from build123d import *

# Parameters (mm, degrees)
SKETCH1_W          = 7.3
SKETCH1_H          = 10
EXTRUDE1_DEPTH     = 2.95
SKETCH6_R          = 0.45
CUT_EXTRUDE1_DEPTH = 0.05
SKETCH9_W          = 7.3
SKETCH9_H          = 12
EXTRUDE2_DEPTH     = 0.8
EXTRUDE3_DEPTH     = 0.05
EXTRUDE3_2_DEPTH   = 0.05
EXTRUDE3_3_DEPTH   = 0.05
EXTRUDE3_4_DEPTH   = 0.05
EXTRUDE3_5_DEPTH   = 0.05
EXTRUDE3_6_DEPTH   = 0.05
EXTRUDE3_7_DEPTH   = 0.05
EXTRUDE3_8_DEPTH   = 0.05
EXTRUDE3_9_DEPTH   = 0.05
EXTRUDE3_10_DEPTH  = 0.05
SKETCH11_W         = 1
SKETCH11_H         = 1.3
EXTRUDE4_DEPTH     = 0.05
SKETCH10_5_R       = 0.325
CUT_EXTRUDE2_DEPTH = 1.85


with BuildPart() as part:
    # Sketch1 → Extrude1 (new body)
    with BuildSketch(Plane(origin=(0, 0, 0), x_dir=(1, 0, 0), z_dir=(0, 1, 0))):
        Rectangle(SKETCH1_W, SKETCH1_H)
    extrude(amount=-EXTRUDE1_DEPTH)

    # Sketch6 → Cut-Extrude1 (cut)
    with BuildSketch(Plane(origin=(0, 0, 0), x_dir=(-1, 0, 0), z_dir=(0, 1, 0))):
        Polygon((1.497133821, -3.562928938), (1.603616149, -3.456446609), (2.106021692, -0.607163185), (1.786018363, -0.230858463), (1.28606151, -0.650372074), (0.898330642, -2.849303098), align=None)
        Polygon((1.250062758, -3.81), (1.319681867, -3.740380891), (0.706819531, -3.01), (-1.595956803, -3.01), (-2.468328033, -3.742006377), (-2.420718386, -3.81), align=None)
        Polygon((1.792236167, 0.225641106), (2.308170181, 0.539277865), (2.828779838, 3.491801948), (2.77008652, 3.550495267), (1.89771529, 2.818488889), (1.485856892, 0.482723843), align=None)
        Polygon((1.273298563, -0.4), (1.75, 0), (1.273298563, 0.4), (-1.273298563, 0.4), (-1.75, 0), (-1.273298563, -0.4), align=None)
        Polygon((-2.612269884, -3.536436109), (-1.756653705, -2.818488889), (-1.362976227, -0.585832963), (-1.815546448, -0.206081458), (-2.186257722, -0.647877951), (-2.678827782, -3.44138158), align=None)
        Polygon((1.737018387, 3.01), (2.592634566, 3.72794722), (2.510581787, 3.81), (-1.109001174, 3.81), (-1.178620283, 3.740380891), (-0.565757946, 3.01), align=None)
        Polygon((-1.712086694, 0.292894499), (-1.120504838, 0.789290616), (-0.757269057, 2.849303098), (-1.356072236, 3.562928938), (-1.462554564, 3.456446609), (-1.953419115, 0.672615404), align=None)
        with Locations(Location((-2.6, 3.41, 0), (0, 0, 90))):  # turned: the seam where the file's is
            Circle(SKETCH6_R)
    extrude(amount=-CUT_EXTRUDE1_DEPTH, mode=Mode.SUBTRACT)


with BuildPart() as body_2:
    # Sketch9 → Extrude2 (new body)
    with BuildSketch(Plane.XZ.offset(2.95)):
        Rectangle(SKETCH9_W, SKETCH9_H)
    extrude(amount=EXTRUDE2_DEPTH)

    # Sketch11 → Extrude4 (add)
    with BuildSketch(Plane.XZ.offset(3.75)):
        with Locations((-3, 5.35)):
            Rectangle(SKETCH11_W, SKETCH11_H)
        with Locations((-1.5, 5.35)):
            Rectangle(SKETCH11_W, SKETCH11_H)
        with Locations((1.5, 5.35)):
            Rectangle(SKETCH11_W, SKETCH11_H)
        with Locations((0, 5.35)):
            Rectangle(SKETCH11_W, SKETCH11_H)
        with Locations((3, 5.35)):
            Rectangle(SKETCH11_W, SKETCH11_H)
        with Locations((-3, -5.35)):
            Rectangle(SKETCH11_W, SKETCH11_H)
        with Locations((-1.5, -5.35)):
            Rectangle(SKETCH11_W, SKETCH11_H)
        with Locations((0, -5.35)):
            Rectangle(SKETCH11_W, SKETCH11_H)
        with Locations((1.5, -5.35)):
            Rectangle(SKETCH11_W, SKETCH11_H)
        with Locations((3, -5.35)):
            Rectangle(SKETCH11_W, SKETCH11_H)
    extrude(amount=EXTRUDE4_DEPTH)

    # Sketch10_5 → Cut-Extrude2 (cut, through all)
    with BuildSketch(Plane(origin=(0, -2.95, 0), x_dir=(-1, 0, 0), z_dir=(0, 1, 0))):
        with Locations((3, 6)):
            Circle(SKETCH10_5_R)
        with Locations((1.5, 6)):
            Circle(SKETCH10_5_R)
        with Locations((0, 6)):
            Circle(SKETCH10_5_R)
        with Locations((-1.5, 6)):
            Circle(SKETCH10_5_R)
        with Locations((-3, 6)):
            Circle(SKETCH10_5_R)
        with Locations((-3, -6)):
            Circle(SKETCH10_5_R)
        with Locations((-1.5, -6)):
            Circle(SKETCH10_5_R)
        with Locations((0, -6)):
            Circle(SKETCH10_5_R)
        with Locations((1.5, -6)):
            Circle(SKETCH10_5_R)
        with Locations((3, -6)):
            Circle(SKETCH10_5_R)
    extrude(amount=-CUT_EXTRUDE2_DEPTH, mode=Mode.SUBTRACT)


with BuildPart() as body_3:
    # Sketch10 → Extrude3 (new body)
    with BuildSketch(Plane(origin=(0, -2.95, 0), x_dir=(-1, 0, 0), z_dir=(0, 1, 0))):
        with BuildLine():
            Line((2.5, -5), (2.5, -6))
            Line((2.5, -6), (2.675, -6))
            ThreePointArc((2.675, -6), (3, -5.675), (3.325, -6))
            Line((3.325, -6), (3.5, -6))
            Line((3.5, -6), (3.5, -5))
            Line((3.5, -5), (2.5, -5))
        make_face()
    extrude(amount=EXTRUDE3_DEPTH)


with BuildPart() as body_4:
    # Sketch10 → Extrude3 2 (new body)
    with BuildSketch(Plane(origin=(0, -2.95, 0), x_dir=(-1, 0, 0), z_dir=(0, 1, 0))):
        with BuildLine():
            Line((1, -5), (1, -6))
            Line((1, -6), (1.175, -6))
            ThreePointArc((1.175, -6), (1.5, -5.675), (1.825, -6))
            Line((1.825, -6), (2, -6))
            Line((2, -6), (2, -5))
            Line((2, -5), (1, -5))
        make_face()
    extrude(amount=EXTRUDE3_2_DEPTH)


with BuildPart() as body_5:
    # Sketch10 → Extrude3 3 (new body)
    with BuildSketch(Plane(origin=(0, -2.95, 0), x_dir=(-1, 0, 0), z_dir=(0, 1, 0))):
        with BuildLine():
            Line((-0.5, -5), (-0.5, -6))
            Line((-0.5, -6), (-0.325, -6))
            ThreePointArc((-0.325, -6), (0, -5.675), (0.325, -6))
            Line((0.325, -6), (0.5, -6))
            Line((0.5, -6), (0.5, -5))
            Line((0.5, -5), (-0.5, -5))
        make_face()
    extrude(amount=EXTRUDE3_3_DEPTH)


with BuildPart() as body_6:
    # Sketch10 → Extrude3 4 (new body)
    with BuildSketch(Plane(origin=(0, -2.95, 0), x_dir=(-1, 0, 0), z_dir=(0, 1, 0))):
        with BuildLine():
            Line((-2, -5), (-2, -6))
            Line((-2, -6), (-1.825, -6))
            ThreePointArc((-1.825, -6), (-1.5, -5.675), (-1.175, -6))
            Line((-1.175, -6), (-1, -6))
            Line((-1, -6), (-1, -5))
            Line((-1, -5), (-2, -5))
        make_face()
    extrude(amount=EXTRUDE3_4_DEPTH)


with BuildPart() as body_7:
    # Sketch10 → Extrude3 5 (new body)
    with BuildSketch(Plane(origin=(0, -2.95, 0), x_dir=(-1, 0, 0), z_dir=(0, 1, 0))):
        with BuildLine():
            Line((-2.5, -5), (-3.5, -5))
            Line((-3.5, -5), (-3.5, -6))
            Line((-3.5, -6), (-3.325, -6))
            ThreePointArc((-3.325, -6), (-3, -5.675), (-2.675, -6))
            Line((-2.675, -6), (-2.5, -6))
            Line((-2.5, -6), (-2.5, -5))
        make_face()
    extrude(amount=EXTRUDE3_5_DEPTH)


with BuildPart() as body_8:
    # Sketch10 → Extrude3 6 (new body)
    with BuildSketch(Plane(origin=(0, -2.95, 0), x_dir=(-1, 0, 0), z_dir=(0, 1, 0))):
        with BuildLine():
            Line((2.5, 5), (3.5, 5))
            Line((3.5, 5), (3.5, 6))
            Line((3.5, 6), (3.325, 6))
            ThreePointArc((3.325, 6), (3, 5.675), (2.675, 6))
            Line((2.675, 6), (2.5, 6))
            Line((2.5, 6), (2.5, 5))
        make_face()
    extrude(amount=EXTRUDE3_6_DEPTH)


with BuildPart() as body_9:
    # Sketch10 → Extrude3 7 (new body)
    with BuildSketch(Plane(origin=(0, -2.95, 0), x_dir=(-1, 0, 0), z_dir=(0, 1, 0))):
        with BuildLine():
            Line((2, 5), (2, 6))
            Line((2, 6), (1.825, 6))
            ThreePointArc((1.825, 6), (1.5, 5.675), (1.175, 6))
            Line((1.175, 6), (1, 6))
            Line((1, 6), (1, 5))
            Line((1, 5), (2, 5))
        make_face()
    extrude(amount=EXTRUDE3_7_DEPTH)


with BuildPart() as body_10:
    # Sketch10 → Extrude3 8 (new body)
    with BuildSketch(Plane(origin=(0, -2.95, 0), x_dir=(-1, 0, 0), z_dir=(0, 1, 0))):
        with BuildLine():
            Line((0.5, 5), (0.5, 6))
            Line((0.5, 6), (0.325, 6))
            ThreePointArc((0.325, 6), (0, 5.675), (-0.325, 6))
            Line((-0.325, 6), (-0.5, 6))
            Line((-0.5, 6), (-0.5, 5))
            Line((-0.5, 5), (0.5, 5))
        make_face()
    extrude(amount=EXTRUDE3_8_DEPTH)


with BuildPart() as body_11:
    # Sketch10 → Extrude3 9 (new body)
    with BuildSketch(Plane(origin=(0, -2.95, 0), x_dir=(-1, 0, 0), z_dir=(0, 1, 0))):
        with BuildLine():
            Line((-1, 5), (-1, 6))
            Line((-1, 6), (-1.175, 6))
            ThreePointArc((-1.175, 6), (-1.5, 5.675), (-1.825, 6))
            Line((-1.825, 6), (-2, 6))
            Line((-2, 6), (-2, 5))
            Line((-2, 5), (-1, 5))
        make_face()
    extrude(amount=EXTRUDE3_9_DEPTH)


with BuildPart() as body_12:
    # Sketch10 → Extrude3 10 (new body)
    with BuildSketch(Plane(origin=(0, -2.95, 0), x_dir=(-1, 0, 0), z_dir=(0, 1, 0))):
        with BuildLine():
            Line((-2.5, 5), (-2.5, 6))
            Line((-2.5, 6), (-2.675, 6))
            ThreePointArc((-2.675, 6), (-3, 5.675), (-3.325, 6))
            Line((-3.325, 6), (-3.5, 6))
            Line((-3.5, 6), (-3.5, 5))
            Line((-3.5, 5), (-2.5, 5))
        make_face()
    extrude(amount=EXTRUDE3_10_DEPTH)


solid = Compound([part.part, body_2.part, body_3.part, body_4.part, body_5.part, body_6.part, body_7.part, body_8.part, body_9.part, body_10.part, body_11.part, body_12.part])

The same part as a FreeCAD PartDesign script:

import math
import FreeCAD as App
import Part
import Sketcher
Q = App.Units.Quantity


def add_polygon(sketch, points):
    """Adds a closed chain of lines whose ends are joined by coincident constraints."""
    first, n = sketch.GeometryCount, len(points)
    for a, b in zip(points, points[1:] + points[:1]):
        sketch.addGeometry(Part.LineSegment(App.Vector(*a, 0), App.Vector(*b, 0)), False)
    for i in range(n):
        sketch.addConstraint(Sketcher.Constraint("Coincident", first + i, 2, first + (i + 1) % n, 1))

doc = App.newDocument("Part")
body = doc.addObject("PartDesign::Body", "Body")

# Sketch on XZ plane
sketch1 = body.newObject("Sketcher::SketchObject", "Sketch")
sketch1.AttachmentSupport = (doc.getObject("XZ_Plane"), [""])
sketch1.MapMode = "FlatFace"
add_polygon(sketch1, [(-3.65, -5), (-3.65, 5), (3.65, 5), (3.65, -5)])  # lines 0-3
sketch1.addConstraint([
    Sketcher.Constraint("Vertical", 0),
    Sketcher.Constraint("Horizontal", 1),
    Sketcher.Constraint("Vertical", 2),
    Sketcher.Constraint("Horizontal", 3),
    Sketcher.Constraint("Symmetric", 0, 2, 2, 2, -1, 1),
    Sketcher.Constraint("DistanceY", 0, 1, 0, 2, Q("10 mm")),
    Sketcher.Constraint("DistanceX", 1, 1, 1, 2, Q("7.3 mm")),
])
pad1 = body.newObject("PartDesign::Pad", "Pad")
pad1.Profile = sketch1
pad1.Length = 2.95

# Sketch on XZ plane
sketch2 = body.newObject("Sketcher::SketchObject", "Sketch001")
sketch2.AttachmentSupport = (doc.getObject("XZ_Plane"), [""])
sketch2.MapMode = "FlatFace"
add_polygon(sketch2, [(-1.497134, -3.562929), (-1.603616, -3.456447), (-2.106022, -0.607163), (-1.786018, -0.230858), (-1.286062, -0.650372), (-0.898331, -2.849303)])  # lines 0-5
add_polygon(sketch2, [(-1.250063, -3.81), (-1.319682, -3.740381), (-0.70682, -3.01), (1.595957, -3.01), (2.468328, -3.742006), (2.420718, -3.81)])  # lines 6-11
add_polygon(sketch2, [(-1.792236, 0.225641), (-2.30817, 0.539278), (-2.82878, 3.491802), (-2.770087, 3.550495), (-1.897715, 2.818489), (-1.485857, 0.482724)])  # lines 12-17
add_polygon(sketch2, [(-1.273299, -0.4), (-1.75, 0), (-1.273299, 0.4), (1.273299, 0.4), (1.75, 0), (1.273299, -0.4)])  # lines 18-23
add_polygon(sketch2, [(2.61227, -3.536436), (1.756654, -2.818489), (1.362976, -0.585833), (1.815546, -0.206081), (2.186258, -0.647878), (2.678828, -3.441382)])  # lines 24-29
add_polygon(sketch2, [(-1.737018, 3.01), (-2.592635, 3.727947), (-2.510582, 3.81), (1.109001, 3.81), (1.17862, 3.740381), (0.565758, 3.01)])  # lines 30-35
add_polygon(sketch2, [(1.712087, 0.292894), (1.120505, 0.789291), (0.757269, 2.849303), (1.356072, 3.562929), (1.462555, 3.456447), (1.953419, 0.672615)])  # lines 36-41
sketch2.addGeometry(Part.Circle(App.Vector(2.6, 3.41, 0), App.Vector(0, 0, 1), 0.45), False)  # 42
sketch2.addConstraint([
    Sketcher.Constraint("Horizontal", 8),
    Sketcher.Constraint("Horizontal", 11),
    Sketcher.Constraint("Horizontal", 20),
    Sketcher.Constraint("Horizontal", 23),
    Sketcher.Constraint("Horizontal", 32),
    Sketcher.Constraint("Horizontal", 35),
    Sketcher.Constraint("Symmetric", 18, 2, 21, 2, -1, 1),
    Sketcher.Constraint("Symmetric", 19, 2, 22, 2, -1, 1),
    Sketcher.Constraint("PointOnObject", 18, 2, -1),
    Sketcher.Constraint("Parallel", 1, 4),
    Sketcher.Constraint("Perpendicular", 3, 5),
    Sketcher.Constraint("Parallel", 0, 6),
    Sketcher.Constraint("Parallel", 5, 7),
    Sketcher.Constraint("Perpendicular", 7, 9),
    Sketcher.Constraint("Parallel", 4, 13),
    Sketcher.Constraint("Perpendicular", 6, 14),
    Sketcher.Constraint("Parallel", 9, 15),
    Sketcher.Constraint("Parallel", 13, 16),
    Sketcher.Constraint("Parallel", 15, 18),
    Sketcher.Constraint("Parallel", 17, 19),
    Sketcher.Constraint("Parallel", 18, 21),
    Sketcher.Constraint("Parallel", 21, 24),
    Sketcher.Constraint("Parallel", 16, 25),
    Sketcher.Constraint("Parallel", 22, 26),
    Sketcher.Constraint("Perpendicular", 26, 27),
    Sketcher.Constraint("Parallel", 25, 28),
    Sketcher.Constraint("Parallel", 10, 29),
    Sketcher.Constraint("Parallel", 24, 30),
    Sketcher.Constraint("Parallel", 14, 31),
    Sketcher.Constraint("Perpendicular", 31, 33),
    Sketcher.Constraint("Perpendicular", 30, 34),
    Sketcher.Constraint("Perpendicular", 34, 36),
    Sketcher.Constraint("Parallel", 28, 37),
    Sketcher.Constraint("Perpendicular", 36, 38),
    Sketcher.Constraint("Parallel", 33, 39),
    Sketcher.Constraint("Parallel", 37, 40),
    Sketcher.Constraint("Vertical", 20, 2, 22, 2),
    Sketcher.Constraint("Equal", 8, 35),
    Sketcher.Constraint("Equal", 10, 14),
    Sketcher.Constraint("Equal", 9, 15),
    Sketcher.Constraint("Equal", 24, 30),
    Sketcher.Constraint("Equal", 29, 31),
    Sketcher.Constraint("Equal", 6, 33),
    Sketcher.Constraint("Equal", 7, 34),
    Sketcher.Constraint("Equal", 5, 38),
    Sketcher.Constraint("Equal", 0, 39),
    Sketcher.Constraint("Diameter", 42, Q("0.9 mm")),
    Sketcher.Constraint("Angle", 0, Q("135 deg")),
    Sketcher.Constraint("Angle", 1, Q("100 deg")),
    Sketcher.Constraint("Angle", 3, Q("-40 deg")),
    Sketcher.Constraint("Angle", 10, Q("-125 deg")),
    Sketcher.Constraint("DistanceX", -1, 1, 42, 3, Q("2.6 mm")),
    Sketcher.Constraint("DistanceY", -1, 1, 19, 2, Q("0.4 mm")),
    Sketcher.Constraint("DistanceY", 10, 2, 8, 2, Q("0.8 mm")),
    Sketcher.Constraint("DistanceY", 42, 3, 32, 2, Q("0.4 mm")),
    Sketcher.Constraint("DistanceY", -1, 1, 42, 3, Q("3.41 mm")),
    Sketcher.Constraint("DistanceY", 7, 2, -1, 1, Q("3.01 mm")),
    Sketcher.Constraint("DistanceX", 18, 2, -1, 1, Q("1.75 mm")),
    Sketcher.Constraint("DistanceX", -1, 1, 32, 2, Q("1.109001 mm")),
    Sketcher.Constraint("Distance", 9, Q("1.1388 mm")),
    Sketcher.Constraint("Distance", 25, Q("2.267098 mm")),
    Sketcher.Constraint("DistanceX", 11, 2, 11, 1, Q("3.670781 mm")),
    Sketcher.Constraint("DistanceY", -1, 1, 13, 2, Q("3.491802 mm")),
    Sketcher.Constraint("DistanceX", 6, 2, 10, 2, Q("3.7404 mm")),
    Sketcher.Constraint("DistanceY", 2, 2, 17, 2, Q("0.4565 mm")),
    Sketcher.Constraint("DistanceX", 9, 2, 28, 2, Q("0.2105 mm")),
    Sketcher.Constraint("DistanceX", 13, 2, 31, 2, Q("0.318198 mm")),
    Sketcher.Constraint("Distance", 0, Q("0.150589 mm")),
    Sketcher.Constraint("Distance", 1, Q("2.893238 mm")),
    Sketcher.Constraint("Distance", 2, Q("0.493971 mm")),
    Sketcher.Constraint("Distance", 13, Q("2.998072 mm")),
    Sketcher.Constraint("Distance", 17, Q("0.39995 mm")),
    Sketcher.Constraint("Distance", 26, Q("0.590788 mm")),
    Sketcher.Constraint("Distance", 29, Q("0.11604 mm")),
    Sketcher.Constraint("Distance", 37, Q("2.091791 mm")),
    Sketcher.Constraint("Distance", 41, Q("0.449921 mm")),
    Sketcher.Constraint("DistanceX", 1, 2, -1, 1, Q("2.106022 mm")),
    Sketcher.Constraint("DistanceX", 2, 2, -1, 1, Q("1.786018 mm")),
    Sketcher.Constraint("DistanceY", 2, 2, -1, 1, Q("0.230858 mm")),
    Sketcher.Constraint("DistanceX", 3, 2, -1, 1, Q("1.286062 mm")),
    Sketcher.Constraint("DistanceX", 6, 2, -1, 1, Q("1.319682 mm")),
    Sketcher.Constraint("DistanceY", 24, 2, -1, 1, Q("2.818489 mm")),
    Sketcher.Constraint("DistanceY", -1, 1, 36, 2, Q("0.789291 mm")),
    Sketcher.Constraint("DistanceX", -1, 1, 37, 2, Q("0.757269 mm")),
    Sketcher.Constraint("DistanceX", -1, 1, 40, 2, Q("1.953419 mm")),
])
pocket1 = body.newObject("PartDesign::Pocket", "Pocket")
pocket1.Profile = sketch2
pocket1.Length = 0.05
pocket1.Reversed = True
body2 = doc.addObject("PartDesign::Body", "Body001")

# Sketch on XZ plane
sketch3 = body2.newObject("Sketcher::SketchObject", "Sketch002")
sketch3.AttachmentSupport = (doc.getObject("XZ_Plane001"), [""])
sketch3.MapMode = "FlatFace"
sketch3.AttachmentOffset = App.Placement(App.Vector(0, 0, 2.95), App.Rotation())
add_polygon(sketch3, [(-3.65, 6), (-3.65, -6), (3.65, -6), (3.65, 6)])  # lines 0-3
sketch3.addConstraint([
    Sketcher.Constraint("Vertical", 0),
    Sketcher.Constraint("Horizontal", 1),
    Sketcher.Constraint("Vertical", 2),
    Sketcher.Constraint("Horizontal", 3),
    Sketcher.Constraint("Symmetric", 0, 2, 2, 2, -1, 1),
    Sketcher.Constraint("DistanceY", 0, 2, 0, 1, Q("12 mm")),
    Sketcher.Constraint("DistanceX", 1, 1, 1, 2, Q("7.3 mm")),
])
pad2 = body2.newObject("PartDesign::Pad", "Pad001")
pad2.Profile = sketch3
pad2.Length = 0.8

# Sketch on XZ plane
sketch4 = body2.newObject("Sketcher::SketchObject", "Sketch003")
sketch4.AttachmentSupport = (doc.getObject("XZ_Plane001"), [""])
sketch4.MapMode = "FlatFace"
sketch4.AttachmentOffset = App.Placement(App.Vector(0, 0, 3.75), App.Rotation())
add_polygon(sketch4, [(-3.5, 6), (-3.5, 4.7), (-2.5, 4.7), (-2.5, 6)])  # lines 0-3
add_polygon(sketch4, [(-2, 6), (-2, 4.7), (-1, 4.7), (-1, 6)])  # lines 4-7
add_polygon(sketch4, [(1, 6), (1, 4.7), (2, 4.7), (2, 6)])  # lines 8-11
add_polygon(sketch4, [(-0.5, 6), (-0.5, 4.7), (0.5, 4.7), (0.5, 6)])  # lines 12-15
add_polygon(sketch4, [(2.5, 6), (2.5, 4.7), (3.5, 4.7), (3.5, 6)])  # lines 16-19
add_polygon(sketch4, [(-3.5, -4.7), (-3.5, -6), (-2.5, -6), (-2.5, -4.7)])  # lines 20-23
add_polygon(sketch4, [(-2, -4.7), (-2, -6), (-1, -6), (-1, -4.7)])  # lines 24-27
add_polygon(sketch4, [(-0.5, -4.7), (-0.5, -6), (0.5, -6), (0.5, -4.7)])  # lines 28-31
add_polygon(sketch4, [(1, -4.7), (1, -6), (2, -6), (2, -4.7)])  # lines 32-35
add_polygon(sketch4, [(2.5, -4.7), (2.5, -6), (3.5, -6), (3.5, -4.7)])  # lines 36-39
sketch4.addConstraint([
    Sketcher.Constraint("Vertical", 0),
    Sketcher.Constraint("Horizontal", 1),
    Sketcher.Constraint("Vertical", 2),
    Sketcher.Constraint("Horizontal", 3),
    Sketcher.Constraint("Vertical", 4),
    Sketcher.Constraint("Horizontal", 5),
    Sketcher.Constraint("Vertical", 6),
    Sketcher.Constraint("Horizontal", 7),
    Sketcher.Constraint("Vertical", 8),
    Sketcher.Constraint("Horizontal", 9),
    Sketcher.Constraint("Vertical", 10),
    Sketcher.Constraint("Horizontal", 11),
    Sketcher.Constraint("Vertical", 12),
    Sketcher.Constraint("Horizontal", 13),
    Sketcher.Constraint("Vertical", 14),
    Sketcher.Constraint("Horizontal", 15),
    Sketcher.Constraint("Vertical", 16),
    Sketcher.Constraint("Horizontal", 17),
    Sketcher.Constraint("Vertical", 18),
    Sketcher.Constraint("Horizontal", 19),
    Sketcher.Constraint("Vertical", 20),
    Sketcher.Constraint("Horizontal", 21),
    Sketcher.Constraint("Vertical", 22),
    Sketcher.Constraint("Horizontal", 23),
    Sketcher.Constraint("Vertical", 24),
    Sketcher.Constraint("Horizontal", 25),
    Sketcher.Constraint("Vertical", 26),
    Sketcher.Constraint("Horizontal", 27),
    Sketcher.Constraint("Vertical", 28),
    Sketcher.Constraint("Horizontal", 29),
    Sketcher.Constraint("Vertical", 30),
    Sketcher.Constraint("Horizontal", 31),
    Sketcher.Constraint("Vertical", 32),
    Sketcher.Constraint("Horizontal", 33),
    Sketcher.Constraint("Vertical", 34),
    Sketcher.Constraint("Horizontal", 35),
    Sketcher.Constraint("Vertical", 36),
    Sketcher.Constraint("Horizontal", 37),
    Sketcher.Constraint("Vertical", 38),
    Sketcher.Constraint("Horizontal", 39),
    Sketcher.Constraint("Symmetric", 18, 2, 20, 2, -1, 1),
    Sketcher.Constraint("Symmetric", 16, 2, 22, 2, -1, 1),
    Sketcher.Constraint("Symmetric", 10, 2, 24, 2, -1, 1),
    Sketcher.Constraint("Symmetric", 8, 2, 26, 2, -1, 1),
    Sketcher.Constraint("Symmetric", 14, 2, 28, 2, -1, 1),
    Sketcher.Constraint("Symmetric", 12, 2, 30, 2, -1, 1),
    Sketcher.Constraint("Symmetric", 6, 2, 32, 2, -1, 1),
    Sketcher.Constraint("Symmetric", 4, 2, 34, 2, -1, 1),
    Sketcher.Constraint("Symmetric", 2, 2, 36, 2, -1, 1),
    Sketcher.Constraint("Symmetric", 0, 2, 38, 2, -1, 1),
    Sketcher.Constraint("Symmetric", 5, 2, 8, 2, -2),
    Sketcher.Constraint("Symmetric", 7, 2, 10, 2, -2),
    Sketcher.Constraint("Symmetric", 1, 2, 16, 2, -2),
    Sketcher.Constraint("Symmetric", 3, 2, 18, 2, -2),
    Sketcher.Constraint("Horizontal", 1, 2, 4, 2),
    Sketcher.Constraint("Horizontal", 3, 2, 6, 2),
    Sketcher.Constraint("Horizontal", 9, 2, 12, 2),
    Sketcher.Constraint("Horizontal", 11, 2, 14, 2),
    Sketcher.Constraint("Vertical", 15, 2, 28, 2),
    Sketcher.Constraint("Equal", 3, 5),
    Sketcher.Constraint("Equal", 11, 13),
    Sketcher.Constraint("DistanceX", 1, 1, 1, 2, Q("1 mm")),
    Sketcher.Constraint("DistanceY", 0, 2, 0, 1, Q("1.3 mm")),
    Sketcher.Constraint("DistanceY", -1, 1, 2, 2, Q("6 mm")),
    Sketcher.Constraint("DistanceX", 4, 2, -1, 1, Q("2 mm")),
    Sketcher.Constraint("DistanceX", 13, 2, 16, 2, Q("2 mm")),
])
pad3 = body2.newObject("PartDesign::Pad", "Pad002")
pad3.Profile = sketch4
pad3.Length = 0.05

# Sketch on XZ plane
sketch5 = body2.newObject("Sketcher::SketchObject", "Sketch004")
sketch5.AttachmentSupport = (doc.getObject("XZ_Plane001"), [""])
sketch5.MapMode = "FlatFace"
sketch5.AttachmentOffset = App.Placement(App.Vector(0, 0, 2.95), App.Rotation())
sketch5.addGeometry([
    Part.Circle(App.Vector(-3, 6, 0), App.Vector(0, 0, 1), 0.325),  # 0
    Part.Circle(App.Vector(-1.5, 6, 0), App.Vector(0, 0, 1), 0.325),  # 1
    Part.Circle(App.Vector(0, 6, 0), App.Vector(0, 0, 1), 0.325),  # 2
    Part.Circle(App.Vector(1.5, 6, 0), App.Vector(0, 0, 1), 0.325),  # 3
    Part.Circle(App.Vector(3, 6, 0), App.Vector(0, 0, 1), 0.325),  # 4
    Part.Circle(App.Vector(3, -6, 0), App.Vector(0, 0, 1), 0.325),  # 5
    Part.Circle(App.Vector(1.5, -6, 0), App.Vector(0, 0, 1), 0.325),  # 6
    Part.Circle(App.Vector(0, -6, 0), App.Vector(0, 0, 1), 0.325),  # 7
    Part.Circle(App.Vector(-1.5, -6, 0), App.Vector(0, 0, 1), 0.325),  # 8
    Part.Circle(App.Vector(-3, -6, 0), App.Vector(0, 0, 1), 0.325),  # 9
], False)
sketch5.addConstraint([
    Sketcher.Constraint("Equal", 0, 1),
    Sketcher.Constraint("Equal", 1, 2),
    Sketcher.Constraint("Equal", 2, 3),
    Sketcher.Constraint("Equal", 3, 4),
    Sketcher.Constraint("Equal", 4, 5),
    Sketcher.Constraint("Equal", 5, 6),
    Sketcher.Constraint("Equal", 6, 7),
    Sketcher.Constraint("Equal", 7, 8),
    Sketcher.Constraint("Equal", 8, 9),
    Sketcher.Constraint("Symmetric", 0, 3, 5, 3, -1, 1),
    Sketcher.Constraint("Symmetric", 1, 3, 6, 3, -1, 1),
    Sketcher.Constraint("Symmetric", 2, 3, 7, 3, -1, 1),
    Sketcher.Constraint("Symmetric", 3, 3, 8, 3, -1, 1),
    Sketcher.Constraint("Symmetric", 4, 3, 9, 3, -1, 1),
    Sketcher.Constraint("Symmetric", 1, 3, 3, 3, -2),
    Sketcher.Constraint("Symmetric", 0, 3, 4, 3, -2),
    Sketcher.Constraint("PointOnObject", 2, 3, -2),
    Sketcher.Constraint("Horizontal", 0, 3, 1, 3),
    Sketcher.Constraint("Horizontal", 1, 3, 2, 3),
    Sketcher.Constraint("Diameter", 0, Q("0.65 mm")),
    Sketcher.Constraint("DistanceX", 0, 3, -1, 1, Q("3 mm")),
    Sketcher.Constraint("DistanceY", -1, 1, 0, 3, Q("6 mm")),
    Sketcher.Constraint("DistanceX", 1, 3, 3, 3, Q("3 mm")),
])
pocket2 = body2.newObject("PartDesign::Pocket", "Pocket001")
pocket2.Profile = sketch5
pocket2.Type = "ThroughAll"
pocket2.Reversed = True
body3 = doc.addObject("PartDesign::Body", "Body002")

# Sketch on XZ plane
sketch6 = body3.newObject("Sketcher::SketchObject", "Sketch005")
sketch6.AttachmentSupport = (doc.getObject("XZ_Plane002"), [""])
sketch6.MapMode = "FlatFace"
sketch6.AttachmentOffset = App.Placement(App.Vector(0, 0, 2.95), App.Rotation())
sketch6.addGeometry([
    Part.LineSegment(App.Vector(-2.5, -5, 0), App.Vector(-2.5, -6, 0)),  # 0
    Part.LineSegment(App.Vector(-2.5, -6, 0), App.Vector(-2.675, -6, 0)),  # 1
    Part.ArcOfCircle(Part.Circle(App.Vector(-3, -6, 0), App.Vector(0, 0, 1), 0.325), math.radians(0), math.radians(180)),  # 2
    Part.LineSegment(App.Vector(-3.325, -6, 0), App.Vector(-3.5, -6, 0)),  # 3
    Part.LineSegment(App.Vector(-3.5, -6, 0), App.Vector(-3.5, -5, 0)),  # 4
    Part.LineSegment(App.Vector(-3.5, -5, 0), App.Vector(-2.5, -5, 0)),  # 5
], False)
sketch6.addConstraint([
    Sketcher.Constraint("Coincident", 0, 2, 1, 1),
    Sketcher.Constraint("Coincident", 1, 2, 2, 1),
    Sketcher.Constraint("Coincident", 2, 2, 3, 1),
    Sketcher.Constraint("Coincident", 3, 2, 4, 1),
    Sketcher.Constraint("Coincident", 4, 2, 5, 1),
    Sketcher.Constraint("Coincident", 5, 2, 0, 1),
    Sketcher.Constraint("Vertical", 0),
    Sketcher.Constraint("Horizontal", 1),
    Sketcher.Constraint("Horizontal", 3),
    Sketcher.Constraint("Vertical", 4),
    Sketcher.Constraint("Horizontal", 5),
    Sketcher.Constraint("Horizontal", 2, 3, 0, 2),
    Sketcher.Constraint("Horizontal", 1, 2, 2, 2),
    Sketcher.Constraint("Equal", 1, 3),
    Sketcher.Constraint("Equal", 5, 0),
    Sketcher.Constraint("DistanceX", 5, 1, 5, 2, Q("1 mm")),
    Sketcher.Constraint("DistanceX", 2, 3, -1, 1, Q("3 mm")),
    Sketcher.Constraint("DistanceY", 2, 3, -1, 1, Q("6 mm")),
    Sketcher.Constraint("Radius", 2, Q("0.325 mm")),
])
pad4 = body3.newObject("PartDesign::Pad", "Pad003")
pad4.Profile = sketch6
pad4.Length = 0.05
pad4.Reversed = True
body4 = doc.addObject("PartDesign::Body", "Body003")

# Sketch on XZ plane
sketch7 = body4.newObject("Sketcher::SketchObject", "Sketch006")
sketch7.AttachmentSupport = (doc.getObject("XZ_Plane003"), [""])
sketch7.MapMode = "FlatFace"
sketch7.AttachmentOffset = App.Placement(App.Vector(0, 0, 2.95), App.Rotation())
sketch7.addGeometry([
    Part.LineSegment(App.Vector(-1, -5, 0), App.Vector(-1, -6, 0)),  # 0
    Part.LineSegment(App.Vector(-1, -6, 0), App.Vector(-1.175, -6, 0)),  # 1
    Part.ArcOfCircle(Part.Circle(App.Vector(-1.5, -6, 0), App.Vector(0, 0, 1), 0.325), math.radians(0), math.radians(180)),  # 2
    Part.LineSegment(App.Vector(-1.825, -6, 0), App.Vector(-2, -6, 0)),  # 3
    Part.LineSegment(App.Vector(-2, -6, 0), App.Vector(-2, -5, 0)),  # 4
    Part.LineSegment(App.Vector(-2, -5, 0), App.Vector(-1, -5, 0)),  # 5
], False)
sketch7.addConstraint([
    Sketcher.Constraint("Coincident", 0, 2, 1, 1),
    Sketcher.Constraint("Coincident", 1, 2, 2, 1),
    Sketcher.Constraint("Coincident", 2, 2, 3, 1),
    Sketcher.Constraint("Coincident", 3, 2, 4, 1),
    Sketcher.Constraint("Coincident", 4, 2, 5, 1),
    Sketcher.Constraint("Coincident", 5, 2, 0, 1),
    Sketcher.Constraint("Vertical", 0),
    Sketcher.Constraint("Horizontal", 1),
    Sketcher.Constraint("Horizontal", 3),
    Sketcher.Constraint("Vertical", 4),
    Sketcher.Constraint("Horizontal", 5),
    Sketcher.Constraint("Horizontal", 2, 3, 0, 2),
    Sketcher.Constraint("Horizontal", 1, 2, 2, 2),
    Sketcher.Constraint("Equal", 1, 3),
    Sketcher.Constraint("Equal", 5, 0),
    Sketcher.Constraint("DistanceX", 5, 1, 5, 2, Q("1 mm")),
    Sketcher.Constraint("DistanceY", 2, 3, -1, 1, Q("6 mm")),
    Sketcher.Constraint("DistanceX", 0, 2, -1, 1, Q("1 mm")),
    Sketcher.Constraint("Radius", 2, Q("0.325 mm")),
])
pad5 = body4.newObject("PartDesign::Pad", "Pad004")
pad5.Profile = sketch7
pad5.Length = 0.05
pad5.Reversed = True
body5 = doc.addObject("PartDesign::Body", "Body004")

# Sketch on XZ plane
sketch8 = body5.newObject("Sketcher::SketchObject", "Sketch007")
sketch8.AttachmentSupport = (doc.getObject("XZ_Plane004"), [""])
sketch8.MapMode = "FlatFace"
sketch8.AttachmentOffset = App.Placement(App.Vector(0, 0, 2.95), App.Rotation())
sketch8.addGeometry([
    Part.LineSegment(App.Vector(0.5, -5, 0), App.Vector(0.5, -6, 0)),  # 0
    Part.LineSegment(App.Vector(0.5, -6, 0), App.Vector(0.325, -6, 0)),  # 1
    Part.ArcOfCircle(Part.Circle(App.Vector(0, -6, 0), App.Vector(0, 0, 1), 0.325), math.radians(0), math.radians(180)),  # 2
    Part.LineSegment(App.Vector(-0.325, -6, 0), App.Vector(-0.5, -6, 0)),  # 3
    Part.LineSegment(App.Vector(-0.5, -6, 0), App.Vector(-0.5, -5, 0)),  # 4
    Part.LineSegment(App.Vector(-0.5, -5, 0), App.Vector(0.5, -5, 0)),  # 5
], False)
sketch8.addConstraint([
    Sketcher.Constraint("Coincident", 0, 2, 1, 1),
    Sketcher.Constraint("Coincident", 1, 2, 2, 1),
    Sketcher.Constraint("Coincident", 2, 2, 3, 1),
    Sketcher.Constraint("Coincident", 3, 2, 4, 1),
    Sketcher.Constraint("Coincident", 4, 2, 5, 1),
    Sketcher.Constraint("Coincident", 5, 2, 0, 1),
    Sketcher.Constraint("Vertical", 0),
    Sketcher.Constraint("Horizontal", 1),
    Sketcher.Constraint("Horizontal", 3),
    Sketcher.Constraint("Vertical", 4),
    Sketcher.Constraint("Horizontal", 5),
    Sketcher.Constraint("Symmetric", 1, 2, 2, 2, -2),
    Sketcher.Constraint("Horizontal", 2, 3, 0, 2),
    Sketcher.Constraint("Equal", 1, 3),
    Sketcher.Constraint("Equal", 5, 0),
    Sketcher.Constraint("DistanceX", 5, 1, 5, 2, Q("1 mm")),
    Sketcher.Constraint("DistanceY", 2, 3, -1, 1, Q("6 mm")),
    Sketcher.Constraint("Radius", 2, Q("0.325 mm")),
])
pad6 = body5.newObject("PartDesign::Pad", "Pad005")
pad6.Profile = sketch8
pad6.Length = 0.05
pad6.Reversed = True
body6 = doc.addObject("PartDesign::Body", "Body005")

# Sketch on XZ plane
sketch9 = body6.newObject("Sketcher::SketchObject", "Sketch008")
sketch9.AttachmentSupport = (doc.getObject("XZ_Plane005"), [""])
sketch9.MapMode = "FlatFace"
sketch9.AttachmentOffset = App.Placement(App.Vector(0, 0, 2.95), App.Rotation())
sketch9.addGeometry([
    Part.LineSegment(App.Vector(2, -5, 0), App.Vector(2, -6, 0)),  # 0
    Part.LineSegment(App.Vector(2, -6, 0), App.Vector(1.825, -6, 0)),  # 1
    Part.ArcOfCircle(Part.Circle(App.Vector(1.5, -6, 0), App.Vector(0, 0, 1), 0.325), math.radians(0), math.radians(180)),  # 2
    Part.LineSegment(App.Vector(1.175, -6, 0), App.Vector(1, -6, 0)),  # 3
    Part.LineSegment(App.Vector(1, -6, 0), App.Vector(1, -5, 0)),  # 4
    Part.LineSegment(App.Vector(1, -5, 0), App.Vector(2, -5, 0)),  # 5
], False)
sketch9.addConstraint([
    Sketcher.Constraint("Coincident", 0, 2, 1, 1),
    Sketcher.Constraint("Coincident", 1, 2, 2, 1),
    Sketcher.Constraint("Coincident", 2, 2, 3, 1),
    Sketcher.Constraint("Coincident", 3, 2, 4, 1),
    Sketcher.Constraint("Coincident", 4, 2, 5, 1),
    Sketcher.Constraint("Coincident", 5, 2, 0, 1),
    Sketcher.Constraint("Vertical", 0),
    Sketcher.Constraint("Horizontal", 1),
    Sketcher.Constraint("Horizontal", 3),
    Sketcher.Constraint("Vertical", 4),
    Sketcher.Constraint("Horizontal", 5),
    Sketcher.Constraint("Horizontal", 2, 3, 0, 2),
    Sketcher.Constraint("Horizontal", 1, 2, 2, 2),
    Sketcher.Constraint("Equal", 1, 3),
    Sketcher.Constraint("Equal", 5, 0),
    Sketcher.Constraint("DistanceX", 5, 1, 5, 2, Q("1 mm")),
    Sketcher.Constraint("DistanceY", 2, 3, -1, 1, Q("6 mm")),
    Sketcher.Constraint("DistanceX", -1, 1, 0, 2, Q("2 mm")),
    Sketcher.Constraint("Radius", 2, Q("0.325 mm")),
])
pad7 = body6.newObject("PartDesign::Pad", "Pad006")
pad7.Profile = sketch9
pad7.Length = 0.05
pad7.Reversed = True
body7 = doc.addObject("PartDesign::Body", "Body006")

# Sketch on XZ plane
sketch10 = body7.newObject("Sketcher::SketchObject", "Sketch009")
sketch10.AttachmentSupport = (doc.getObject("XZ_Plane006"), [""])
sketch10.MapMode = "FlatFace"
sketch10.AttachmentOffset = App.Placement(App.Vector(0, 0, 2.95), App.Rotation())
sketch10.addGeometry([
    Part.LineSegment(App.Vector(2.5, -5, 0), App.Vector(3.5, -5, 0)),  # 0
    Part.LineSegment(App.Vector(3.5, -5, 0), App.Vector(3.5, -6, 0)),  # 1
    Part.LineSegment(App.Vector(3.5, -6, 0), App.Vector(3.325, -6, 0)),  # 2
    Part.ArcOfCircle(Part.Circle(App.Vector(3, -6, 0), App.Vector(0, 0, 1), 0.325), math.radians(0), math.radians(180)),  # 3
    Part.LineSegment(App.Vector(2.675, -6, 0), App.Vector(2.5, -6, 0)),  # 4
    Part.LineSegment(App.Vector(2.5, -6, 0), App.Vector(2.5, -5, 0)),  # 5
], False)
sketch10.addConstraint([
    Sketcher.Constraint("Coincident", 0, 2, 1, 1),
    Sketcher.Constraint("Coincident", 1, 2, 2, 1),
    Sketcher.Constraint("Coincident", 2, 2, 3, 1),
    Sketcher.Constraint("Coincident", 3, 2, 4, 1),
    Sketcher.Constraint("Coincident", 4, 2, 5, 1),
    Sketcher.Constraint("Coincident", 5, 2, 0, 1),
    Sketcher.Constraint("Horizontal", 0),
    Sketcher.Constraint("Vertical", 1),
    Sketcher.Constraint("Horizontal", 2),
    Sketcher.Constraint("Horizontal", 4),
    Sketcher.Constraint("Vertical", 5),
    Sketcher.Constraint("Horizontal", 3, 3, 1, 2),
    Sketcher.Constraint("Horizontal", 2, 2, 3, 2),
    Sketcher.Constraint("Equal", 2, 4),
    Sketcher.Constraint("Equal", 0, 1),
    Sketcher.Constraint("DistanceX", 0, 1, 0, 2, Q("1 mm")),
    Sketcher.Constraint("DistanceX", -1, 1, 3, 3, Q("3 mm")),
    Sketcher.Constraint("DistanceY", 3, 3, -1, 1, Q("6 mm")),
    Sketcher.Constraint("Radius", 3, Q("0.325 mm")),
])
pad8 = body7.newObject("PartDesign::Pad", "Pad007")
pad8.Profile = sketch10
pad8.Length = 0.05
pad8.Reversed = True
body8 = doc.addObject("PartDesign::Body", "Body007")

# Sketch on XZ plane
sketch11 = body8.newObject("Sketcher::SketchObject", "Sketch010")
sketch11.AttachmentSupport = (doc.getObject("XZ_Plane007"), [""])
sketch11.MapMode = "FlatFace"
sketch11.AttachmentOffset = App.Placement(App.Vector(0, 0, 2.95), App.Rotation())
sketch11.addGeometry([
    Part.LineSegment(App.Vector(-2.5, 5, 0), App.Vector(-3.5, 5, 0)),  # 0
    Part.LineSegment(App.Vector(-3.5, 5, 0), App.Vector(-3.5, 6, 0)),  # 1
    Part.LineSegment(App.Vector(-3.5, 6, 0), App.Vector(-3.325, 6, 0)),  # 2
    Part.ArcOfCircle(Part.Circle(App.Vector(-3, 6, 0), App.Vector(0, 0, 1), 0.325), math.radians(180), math.radians(360)),  # 3
    Part.LineSegment(App.Vector(-2.675, 6, 0), App.Vector(-2.5, 6, 0)),  # 4
    Part.LineSegment(App.Vector(-2.5, 6, 0), App.Vector(-2.5, 5, 0)),  # 5
], False)
sketch11.addConstraint([
    Sketcher.Constraint("Coincident", 0, 2, 1, 1),
    Sketcher.Constraint("Coincident", 1, 2, 2, 1),
    Sketcher.Constraint("Coincident", 2, 2, 3, 1),
    Sketcher.Constraint("Coincident", 3, 2, 4, 1),
    Sketcher.Constraint("Coincident", 4, 2, 5, 1),
    Sketcher.Constraint("Coincident", 5, 2, 0, 1),
    Sketcher.Constraint("Horizontal", 0),
    Sketcher.Constraint("Vertical", 1),
    Sketcher.Constraint("Horizontal", 2),
    Sketcher.Constraint("Horizontal", 4),
    Sketcher.Constraint("Vertical", 5),
    Sketcher.Constraint("Horizontal", 3, 3, 1, 2),
    Sketcher.Constraint("Horizontal", 2, 2, 3, 2),
    Sketcher.Constraint("Equal", 2, 4),
    Sketcher.Constraint("Equal", 0, 1),
    Sketcher.Constraint("DistanceX", 0, 2, 0, 1, Q("1 mm")),
    Sketcher.Constraint("DistanceX", 3, 3, -1, 1, Q("3 mm")),
    Sketcher.Constraint("DistanceY", -1, 1, 3, 3, Q("6 mm")),
    Sketcher.Constraint("Radius", 3, Q("0.325 mm")),
])
pad9 = body8.newObject("PartDesign::Pad", "Pad008")
pad9.Profile = sketch11
pad9.Length = 0.05
pad9.Reversed = True
body9 = doc.addObject("PartDesign::Body", "Body008")

# Sketch on XZ plane
sketch12 = body9.newObject("Sketcher::SketchObject", "Sketch011")
sketch12.AttachmentSupport = (doc.getObject("XZ_Plane008"), [""])
sketch12.MapMode = "FlatFace"
sketch12.AttachmentOffset = App.Placement(App.Vector(0, 0, 2.95), App.Rotation())
sketch12.addGeometry([
    Part.LineSegment(App.Vector(-2, 5, 0), App.Vector(-2, 6, 0)),  # 0
    Part.LineSegment(App.Vector(-2, 6, 0), App.Vector(-1.825, 6, 0)),  # 1
    Part.ArcOfCircle(Part.Circle(App.Vector(-1.5, 6, 0), App.Vector(0, 0, 1), 0.325), math.radians(180), math.radians(360)),  # 2
    Part.LineSegment(App.Vector(-1.175, 6, 0), App.Vector(-1, 6, 0)),  # 3
    Part.LineSegment(App.Vector(-1, 6, 0), App.Vector(-1, 5, 0)),  # 4
    Part.LineSegment(App.Vector(-1, 5, 0), App.Vector(-2, 5, 0)),  # 5
], False)
sketch12.addConstraint([
    Sketcher.Constraint("Coincident", 0, 2, 1, 1),
    Sketcher.Constraint("Coincident", 1, 2, 2, 1),
    Sketcher.Constraint("Coincident", 2, 2, 3, 1),
    Sketcher.Constraint("Coincident", 3, 2, 4, 1),
    Sketcher.Constraint("Coincident", 4, 2, 5, 1),
    Sketcher.Constraint("Coincident", 5, 2, 0, 1),
    Sketcher.Constraint("Vertical", 0),
    Sketcher.Constraint("Horizontal", 1),
    Sketcher.Constraint("Horizontal", 3),
    Sketcher.Constraint("Vertical", 4),
    Sketcher.Constraint("Horizontal", 5),
    Sketcher.Constraint("Horizontal", 2, 3, 0, 2),
    Sketcher.Constraint("Horizontal", 1, 2, 2, 2),
    Sketcher.Constraint("Equal", 1, 3),
    Sketcher.Constraint("Equal", 5, 0),
    Sketcher.Constraint("DistanceX", 5, 2, 5, 1, Q("1 mm")),
    Sketcher.Constraint("DistanceY", -1, 1, 2, 3, Q("6 mm")),
    Sketcher.Constraint("DistanceX", 0, 2, -1, 1, Q("2 mm")),
    Sketcher.Constraint("Radius", 2, Q("0.325 mm")),
])
pad10 = body9.newObject("PartDesign::Pad", "Pad009")
pad10.Profile = sketch12
pad10.Length = 0.05
pad10.Reversed = True
body10 = doc.addObject("PartDesign::Body", "Body009")

# Sketch on XZ plane
sketch13 = body10.newObject("Sketcher::SketchObject", "Sketch012")
sketch13.AttachmentSupport = (doc.getObject("XZ_Plane009"), [""])
sketch13.MapMode = "FlatFace"
sketch13.AttachmentOffset = App.Placement(App.Vector(0, 0, 2.95), App.Rotation())
sketch13.addGeometry([
    Part.LineSegment(App.Vector(-0.5, 5, 0), App.Vector(-0.5, 6, 0)),  # 0
    Part.LineSegment(App.Vector(-0.5, 6, 0), App.Vector(-0.325, 6, 0)),  # 1
    Part.ArcOfCircle(Part.Circle(App.Vector(0, 6, 0), App.Vector(0, 0, 1), 0.325), math.radians(180), math.radians(360)),  # 2
    Part.LineSegment(App.Vector(0.325, 6, 0), App.Vector(0.5, 6, 0)),  # 3
    Part.LineSegment(App.Vector(0.5, 6, 0), App.Vector(0.5, 5, 0)),  # 4
    Part.LineSegment(App.Vector(0.5, 5, 0), App.Vector(-0.5, 5, 0)),  # 5
], False)
sketch13.addConstraint([
    Sketcher.Constraint("Coincident", 0, 2, 1, 1),
    Sketcher.Constraint("Coincident", 1, 2, 2, 1),
    Sketcher.Constraint("Coincident", 2, 2, 3, 1),
    Sketcher.Constraint("Coincident", 3, 2, 4, 1),
    Sketcher.Constraint("Coincident", 4, 2, 5, 1),
    Sketcher.Constraint("Coincident", 5, 2, 0, 1),
    Sketcher.Constraint("Vertical", 0),
    Sketcher.Constraint("Horizontal", 1),
    Sketcher.Constraint("Horizontal", 3),
    Sketcher.Constraint("Vertical", 4),
    Sketcher.Constraint("Horizontal", 5),
    Sketcher.Constraint("Symmetric", 1, 2, 2, 2, -2),
    Sketcher.Constraint("Horizontal", 2, 3, 0, 2),
    Sketcher.Constraint("Equal", 1, 3),
    Sketcher.Constraint("Equal", 5, 0),
    Sketcher.Constraint("DistanceX", 5, 2, 5, 1, Q("1 mm")),
    Sketcher.Constraint("DistanceY", -1, 1, 2, 3, Q("6 mm")),
    Sketcher.Constraint("Radius", 2, Q("0.325 mm")),
])
pad11 = body10.newObject("PartDesign::Pad", "Pad010")
pad11.Profile = sketch13
pad11.Length = 0.05
pad11.Reversed = True
body11 = doc.addObject("PartDesign::Body", "Body010")

# Sketch on XZ plane
sketch14 = body11.newObject("Sketcher::SketchObject", "Sketch013")
sketch14.AttachmentSupport = (doc.getObject("XZ_Plane010"), [""])
sketch14.MapMode = "FlatFace"
sketch14.AttachmentOffset = App.Placement(App.Vector(0, 0, 2.95), App.Rotation())
sketch14.addGeometry([
    Part.LineSegment(App.Vector(1, 5, 0), App.Vector(1, 6, 0)),  # 0
    Part.LineSegment(App.Vector(1, 6, 0), App.Vector(1.175, 6, 0)),  # 1
    Part.ArcOfCircle(Part.Circle(App.Vector(1.5, 6, 0), App.Vector(0, 0, 1), 0.325), math.radians(180), math.radians(360)),  # 2
    Part.LineSegment(App.Vector(1.825, 6, 0), App.Vector(2, 6, 0)),  # 3
    Part.LineSegment(App.Vector(2, 6, 0), App.Vector(2, 5, 0)),  # 4
    Part.LineSegment(App.Vector(2, 5, 0), App.Vector(1, 5, 0)),  # 5
], False)
sketch14.addConstraint([
    Sketcher.Constraint("Coincident", 0, 2, 1, 1),
    Sketcher.Constraint("Coincident", 1, 2, 2, 1),
    Sketcher.Constraint("Coincident", 2, 2, 3, 1),
    Sketcher.Constraint("Coincident", 3, 2, 4, 1),
    Sketcher.Constraint("Coincident", 4, 2, 5, 1),
    Sketcher.Constraint("Coincident", 5, 2, 0, 1),
    Sketcher.Constraint("Vertical", 0),
    Sketcher.Constraint("Horizontal", 1),
    Sketcher.Constraint("Horizontal", 3),
    Sketcher.Constraint("Vertical", 4),
    Sketcher.Constraint("Horizontal", 5),
    Sketcher.Constraint("Horizontal", 2, 3, 0, 2),
    Sketcher.Constraint("Horizontal", 1, 2, 2, 2),
    Sketcher.Constraint("Equal", 1, 3),
    Sketcher.Constraint("Equal", 5, 0),
    Sketcher.Constraint("DistanceX", 5, 2, 5, 1, Q("1 mm")),
    Sketcher.Constraint("DistanceY", -1, 1, 2, 3, Q("6 mm")),
    Sketcher.Constraint("DistanceX", -1, 1, 0, 2, Q("1 mm")),
    Sketcher.Constraint("Radius", 2, Q("0.325 mm")),
])
pad12 = body11.newObject("PartDesign::Pad", "Pad011")
pad12.Profile = sketch14
pad12.Length = 0.05
pad12.Reversed = True
body12 = doc.addObject("PartDesign::Body", "Body011")

# Sketch on XZ plane
sketch15 = body12.newObject("Sketcher::SketchObject", "Sketch014")
sketch15.AttachmentSupport = (doc.getObject("XZ_Plane011"), [""])
sketch15.MapMode = "FlatFace"
sketch15.AttachmentOffset = App.Placement(App.Vector(0, 0, 2.95), App.Rotation())
sketch15.addGeometry([
    Part.LineSegment(App.Vector(2.5, 5, 0), App.Vector(2.5, 6, 0)),  # 0
    Part.LineSegment(App.Vector(2.5, 6, 0), App.Vector(2.675, 6, 0)),  # 1
    Part.ArcOfCircle(Part.Circle(App.Vector(3, 6, 0), App.Vector(0, 0, 1), 0.325), math.radians(180), math.radians(360)),  # 2
    Part.LineSegment(App.Vector(3.325, 6, 0), App.Vector(3.5, 6, 0)),  # 3
    Part.LineSegment(App.Vector(3.5, 6, 0), App.Vector(3.5, 5, 0)),  # 4
    Part.LineSegment(App.Vector(3.5, 5, 0), App.Vector(2.5, 5, 0)),  # 5
], False)
sketch15.addConstraint([
    Sketcher.Constraint("Coincident", 0, 2, 1, 1),
    Sketcher.Constraint("Coincident", 1, 2, 2, 1),
    Sketcher.Constraint("Coincident", 2, 2, 3, 1),
    Sketcher.Constraint("Coincident", 3, 2, 4, 1),
    Sketcher.Constraint("Coincident", 4, 2, 5, 1),
    Sketcher.Constraint("Coincident", 5, 2, 0, 1),
    Sketcher.Constraint("Vertical", 0),
    Sketcher.Constraint("Horizontal", 1),
    Sketcher.Constraint("Horizontal", 3),
    Sketcher.Constraint("Vertical", 4),
    Sketcher.Constraint("Horizontal", 5),
    Sketcher.Constraint("Horizontal", 2, 3, 0, 2),
    Sketcher.Constraint("Horizontal", 1, 2, 2, 2),
    Sketcher.Constraint("Equal", 1, 3),
    Sketcher.Constraint("Equal", 5, 0),
    Sketcher.Constraint("DistanceX", 5, 2, 5, 1, Q("1 mm")),
    Sketcher.Constraint("DistanceX", -1, 1, 2, 3, Q("3 mm")),
    Sketcher.Constraint("DistanceY", -1, 1, 2, 3, Q("6 mm")),
    Sketcher.Constraint("Radius", 2, Q("0.325 mm")),
])
pad13 = body12.newObject("PartDesign::Pad", "Pad012")
pad13.Profile = sketch15
pad13.Length = 0.05
pad13.Reversed = True

doc.recompute()
